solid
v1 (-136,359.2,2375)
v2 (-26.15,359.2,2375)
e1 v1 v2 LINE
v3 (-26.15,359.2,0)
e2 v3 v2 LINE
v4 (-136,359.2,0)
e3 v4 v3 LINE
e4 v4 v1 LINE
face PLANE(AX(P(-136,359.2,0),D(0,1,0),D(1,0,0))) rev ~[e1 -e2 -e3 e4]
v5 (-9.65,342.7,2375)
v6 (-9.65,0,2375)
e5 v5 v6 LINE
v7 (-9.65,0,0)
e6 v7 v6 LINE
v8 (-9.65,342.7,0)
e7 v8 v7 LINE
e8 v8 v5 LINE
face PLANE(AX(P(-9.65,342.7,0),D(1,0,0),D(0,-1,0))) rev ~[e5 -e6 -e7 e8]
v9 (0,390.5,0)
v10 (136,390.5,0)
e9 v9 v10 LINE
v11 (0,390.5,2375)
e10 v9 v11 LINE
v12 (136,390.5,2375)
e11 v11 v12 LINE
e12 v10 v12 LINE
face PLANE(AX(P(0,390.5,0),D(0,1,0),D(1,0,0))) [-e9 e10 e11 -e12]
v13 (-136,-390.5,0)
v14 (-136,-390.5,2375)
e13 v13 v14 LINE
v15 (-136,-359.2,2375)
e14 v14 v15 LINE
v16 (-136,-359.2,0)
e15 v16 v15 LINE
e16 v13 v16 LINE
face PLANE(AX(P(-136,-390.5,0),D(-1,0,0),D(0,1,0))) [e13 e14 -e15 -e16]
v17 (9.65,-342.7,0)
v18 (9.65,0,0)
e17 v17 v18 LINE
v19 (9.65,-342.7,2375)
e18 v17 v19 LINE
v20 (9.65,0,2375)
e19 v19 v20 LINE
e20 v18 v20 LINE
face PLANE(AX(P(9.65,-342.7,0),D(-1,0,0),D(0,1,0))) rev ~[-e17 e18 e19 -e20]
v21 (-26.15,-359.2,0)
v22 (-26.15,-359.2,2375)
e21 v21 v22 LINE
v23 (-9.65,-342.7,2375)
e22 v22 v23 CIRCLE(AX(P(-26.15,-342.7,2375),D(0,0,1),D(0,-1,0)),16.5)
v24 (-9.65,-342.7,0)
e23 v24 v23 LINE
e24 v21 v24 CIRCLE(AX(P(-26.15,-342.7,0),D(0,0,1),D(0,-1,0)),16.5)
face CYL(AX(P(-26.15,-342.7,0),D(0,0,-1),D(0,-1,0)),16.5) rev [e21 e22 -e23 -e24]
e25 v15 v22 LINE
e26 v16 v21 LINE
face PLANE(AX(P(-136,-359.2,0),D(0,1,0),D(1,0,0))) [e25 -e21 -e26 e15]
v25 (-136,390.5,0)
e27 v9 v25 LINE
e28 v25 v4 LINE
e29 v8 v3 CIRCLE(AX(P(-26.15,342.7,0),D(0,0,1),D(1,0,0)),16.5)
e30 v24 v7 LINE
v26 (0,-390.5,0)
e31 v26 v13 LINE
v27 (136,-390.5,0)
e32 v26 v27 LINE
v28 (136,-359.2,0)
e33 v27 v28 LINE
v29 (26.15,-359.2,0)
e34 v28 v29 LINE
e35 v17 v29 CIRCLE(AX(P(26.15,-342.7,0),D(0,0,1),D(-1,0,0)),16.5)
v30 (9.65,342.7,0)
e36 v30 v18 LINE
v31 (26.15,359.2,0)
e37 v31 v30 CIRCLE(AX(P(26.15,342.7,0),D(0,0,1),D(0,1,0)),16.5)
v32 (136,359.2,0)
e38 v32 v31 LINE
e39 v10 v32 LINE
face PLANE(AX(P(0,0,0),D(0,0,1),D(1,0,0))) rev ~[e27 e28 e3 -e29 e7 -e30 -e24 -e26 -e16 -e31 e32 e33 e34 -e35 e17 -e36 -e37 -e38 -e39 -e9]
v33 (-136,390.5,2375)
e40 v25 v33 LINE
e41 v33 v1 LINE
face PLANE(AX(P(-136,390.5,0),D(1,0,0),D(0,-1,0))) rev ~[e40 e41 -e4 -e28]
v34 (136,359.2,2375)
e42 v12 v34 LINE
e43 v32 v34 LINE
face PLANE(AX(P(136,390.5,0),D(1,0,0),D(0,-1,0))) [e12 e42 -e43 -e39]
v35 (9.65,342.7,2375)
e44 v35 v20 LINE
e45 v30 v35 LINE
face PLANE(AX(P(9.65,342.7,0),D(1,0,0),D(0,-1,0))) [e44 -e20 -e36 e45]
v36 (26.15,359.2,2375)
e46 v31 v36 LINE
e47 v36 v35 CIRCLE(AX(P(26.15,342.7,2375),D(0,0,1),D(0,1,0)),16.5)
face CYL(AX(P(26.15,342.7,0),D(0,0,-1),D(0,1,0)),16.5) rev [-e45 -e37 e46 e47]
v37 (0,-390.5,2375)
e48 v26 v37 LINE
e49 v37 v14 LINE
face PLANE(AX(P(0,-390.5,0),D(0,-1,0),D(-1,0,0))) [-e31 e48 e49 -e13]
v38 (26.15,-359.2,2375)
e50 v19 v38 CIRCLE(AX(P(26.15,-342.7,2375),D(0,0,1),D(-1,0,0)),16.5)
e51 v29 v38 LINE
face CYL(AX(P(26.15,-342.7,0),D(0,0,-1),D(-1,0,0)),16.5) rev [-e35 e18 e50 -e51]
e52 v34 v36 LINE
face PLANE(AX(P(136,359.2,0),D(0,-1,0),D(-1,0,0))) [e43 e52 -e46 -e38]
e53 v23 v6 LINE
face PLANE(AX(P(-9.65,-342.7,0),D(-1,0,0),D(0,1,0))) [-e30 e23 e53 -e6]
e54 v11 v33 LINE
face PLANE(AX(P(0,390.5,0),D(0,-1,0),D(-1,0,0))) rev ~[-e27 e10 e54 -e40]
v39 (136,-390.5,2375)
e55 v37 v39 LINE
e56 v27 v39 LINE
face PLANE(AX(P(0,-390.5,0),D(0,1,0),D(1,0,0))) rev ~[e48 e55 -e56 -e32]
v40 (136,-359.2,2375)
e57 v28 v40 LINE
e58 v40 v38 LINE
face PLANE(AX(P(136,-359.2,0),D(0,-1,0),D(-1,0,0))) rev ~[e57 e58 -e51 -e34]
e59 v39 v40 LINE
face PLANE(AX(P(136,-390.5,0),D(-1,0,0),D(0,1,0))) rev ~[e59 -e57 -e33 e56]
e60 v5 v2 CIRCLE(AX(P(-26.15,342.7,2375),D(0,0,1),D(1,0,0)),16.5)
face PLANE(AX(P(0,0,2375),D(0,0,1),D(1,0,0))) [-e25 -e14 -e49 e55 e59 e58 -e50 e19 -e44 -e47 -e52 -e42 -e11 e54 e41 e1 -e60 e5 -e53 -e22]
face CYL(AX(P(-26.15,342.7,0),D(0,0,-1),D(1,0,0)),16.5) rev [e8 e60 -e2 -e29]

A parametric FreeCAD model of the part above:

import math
import FreeCAD as App
import Part
import Sketcher
from FreeCAD import Vector

doc = App.newDocument("Part")
body = doc.addObject("PartDesign::Body", "Body")

sketch1 = body.newObject("Sketcher::SketchObject", "Sketch")
sketch1.AttachmentSupport = (doc.getObject("XY_Plane"), [""])
sketch1.MapMode = "FlatFace"
sketch1.addGeometry(Part.LineSegment(Vector(-136, -359, 0), Vector(-136, -390, 0)), False)
sketch1.addGeometry(Part.LineSegment(Vector(-136, -390, 0), Vector(136, -390, 0)), False)
sketch1.addGeometry(Part.LineSegment(Vector(136, -390, 0), Vector(136, -359, 0)), False)
sketch1.addGeometry(Part.LineSegment(Vector(136, -359, 0), Vector(26, -359, 0)), False)
sketch1.addGeometry(Part.ArcOfCircle(Part.Circle(Vector(26, -343, 0), Vector(0, 0, 1), 16), math.radians(180), math.radians(270)), False)
sketch1.addGeometry(Part.LineSegment(Vector(10, -343, 0), Vector(10, 343, 0)), False)
sketch1.addGeometry(Part.ArcOfCircle(Part.Circle(Vector(26, 343, 0), Vector(0, 0, 1), 16), math.radians(90), math.radians(180)), False)
sketch1.addGeometry(Part.LineSegment(Vector(26, 359, 0), Vector(136, 359, 0)), False)
sketch1.addGeometry(Part.LineSegment(Vector(136, 359, 0), Vector(136, 390, 0)), False)
sketch1.addGeometry(Part.LineSegment(Vector(136, 390, 0), Vector(-136, 390, 0)), False)
sketch1.addGeometry(Part.LineSegment(Vector(-136, 390, 0), Vector(-136, 359, 0)), False)
sketch1.addGeometry(Part.LineSegment(Vector(-136, 359, 0), Vector(-26, 359, 0)), False)
sketch1.addGeometry(Part.ArcOfCircle(Part.Circle(Vector(-26, 343, 0), Vector(0, 0, 1), 16), math.radians(0), math.radians(90)), False)
sketch1.addGeometry(Part.LineSegment(Vector(-10, 343, 0), Vector(-10, -343, 0)), False)
sketch1.addGeometry(Part.ArcOfCircle(Part.Circle(Vector(-26, -343, 0), Vector(0, 0, 1), 16), math.radians(-90), math.radians(0)), False)
sketch1.addGeometry(Part.LineSegment(Vector(-26, -359, 0), Vector(-136, -359, 0)), False)
sketch1.addConstraint(Sketcher.Constraint("Coincident", 0, 2, 1, 1))
sketch1.addConstraint(Sketcher.Constraint("Coincident", 1, 2, 2, 1))
sketch1.addConstraint(Sketcher.Constraint("Coincident", 2, 2, 3, 1))
sketch1.addConstraint(Sketcher.Constraint("Tangent", 3, 2, 4, 2))
sketch1.addConstraint(Sketcher.Constraint("Tangent", 4, 1, 5, 1))
sketch1.addConstraint(Sketcher.Constraint("Tangent", 5, 2, 6, 2))
sketch1.addConstraint(Sketcher.Constraint("Tangent", 6, 1, 7, 1))
sketch1.addConstraint(Sketcher.Constraint("Coincident", 7, 2, 8, 1))
sketch1.addConstraint(Sketcher.Constraint("Coincident", 8, 2, 9, 1))
sketch1.addConstraint(Sketcher.Constraint("Coincident", 9, 2, 10, 1))
sketch1.addConstraint(Sketcher.Constraint("Coincident", 10, 2, 11, 1))
sketch1.addConstraint(Sketcher.Constraint("Tangent", 11, 2, 12, 2))
sketch1.addConstraint(Sketcher.Constraint("Tangent", 12, 1, 13, 1))
sketch1.addConstraint(Sketcher.Constraint("Tangent", 13, 2, 14, 2))
sketch1.addConstraint(Sketcher.Constraint("Tangent", 14, 1, 15, 1))
sketch1.addConstraint(Sketcher.Constraint("Coincident", 15, 2, 0, 1))
sketch1.addConstraint(Sketcher.Constraint("Vertical", 0))
sketch1.addConstraint(Sketcher.Constraint("Horizontal", 1))
sketch1.addConstraint(Sketcher.Constraint("Vertical", 2))
sketch1.addConstraint(Sketcher.Constraint("Horizontal", 3))
sketch1.addConstraint(Sketcher.Constraint("Vertical", 5))
sketch1.addConstraint(Sketcher.Constraint("Horizontal", 7))
sketch1.addConstraint(Sketcher.Constraint("Vertical", 8))
sketch1.addConstraint(Sketcher.Constraint("Horizontal", 9))
sketch1.addConstraint(Sketcher.Constraint("Vertical", 10))
sketch1.addConstraint(Sketcher.Constraint("Horizontal", 11))
sketch1.addConstraint(Sketcher.Constraint("Vertical", 13))
sketch1.addConstraint(Sketcher.Constraint("Horizontal", 15))
sketch1.addConstraint(Sketcher.Constraint("Equal", 4, 6))
sketch1.addConstraint(Sketcher.Constraint("Equal", 6, 12))
sketch1.addConstraint(Sketcher.Constraint("Equal", 12, 14))
sketch1.addConstraint(Sketcher.Constraint("Symmetric", 4, 3, 12, 3, -1, 1))
sketch1.addConstraint(Sketcher.Constraint("Symmetric", 0, 2, 8, 2, -1, 1))
sketch1.addConstraint(Sketcher.Constraint("Symmetric", 7, 2, 10, 2, -2))
sketch1.addConstraint(Sketcher.Constraint("Symmetric", 2, 2, 15, 2, -2))
sketch1.addConstraint(Sketcher.Constraint("Radius", 4, 16.5))
sketch1.addConstraint(Sketcher.Constraint("DistanceY", 0, 2, 0, 1, 31.3))
sketch1.addConstraint(Sketcher.Constraint("DistanceX", 0, 2, -1, 1, 136.0))
sketch1.addConstraint(Sketcher.Constraint("DistanceY", 0, 2, -1, 1, 390.5))
sketch1.addConstraint(Sketcher.Constraint("DistanceX", -1, 1, 4, 1, 9.65))
pad1 = body.newObject("PartDesign::Pad", "Pad")
pad1.Profile = sketch1
pad1.Length = 2375

doc.recompute()
